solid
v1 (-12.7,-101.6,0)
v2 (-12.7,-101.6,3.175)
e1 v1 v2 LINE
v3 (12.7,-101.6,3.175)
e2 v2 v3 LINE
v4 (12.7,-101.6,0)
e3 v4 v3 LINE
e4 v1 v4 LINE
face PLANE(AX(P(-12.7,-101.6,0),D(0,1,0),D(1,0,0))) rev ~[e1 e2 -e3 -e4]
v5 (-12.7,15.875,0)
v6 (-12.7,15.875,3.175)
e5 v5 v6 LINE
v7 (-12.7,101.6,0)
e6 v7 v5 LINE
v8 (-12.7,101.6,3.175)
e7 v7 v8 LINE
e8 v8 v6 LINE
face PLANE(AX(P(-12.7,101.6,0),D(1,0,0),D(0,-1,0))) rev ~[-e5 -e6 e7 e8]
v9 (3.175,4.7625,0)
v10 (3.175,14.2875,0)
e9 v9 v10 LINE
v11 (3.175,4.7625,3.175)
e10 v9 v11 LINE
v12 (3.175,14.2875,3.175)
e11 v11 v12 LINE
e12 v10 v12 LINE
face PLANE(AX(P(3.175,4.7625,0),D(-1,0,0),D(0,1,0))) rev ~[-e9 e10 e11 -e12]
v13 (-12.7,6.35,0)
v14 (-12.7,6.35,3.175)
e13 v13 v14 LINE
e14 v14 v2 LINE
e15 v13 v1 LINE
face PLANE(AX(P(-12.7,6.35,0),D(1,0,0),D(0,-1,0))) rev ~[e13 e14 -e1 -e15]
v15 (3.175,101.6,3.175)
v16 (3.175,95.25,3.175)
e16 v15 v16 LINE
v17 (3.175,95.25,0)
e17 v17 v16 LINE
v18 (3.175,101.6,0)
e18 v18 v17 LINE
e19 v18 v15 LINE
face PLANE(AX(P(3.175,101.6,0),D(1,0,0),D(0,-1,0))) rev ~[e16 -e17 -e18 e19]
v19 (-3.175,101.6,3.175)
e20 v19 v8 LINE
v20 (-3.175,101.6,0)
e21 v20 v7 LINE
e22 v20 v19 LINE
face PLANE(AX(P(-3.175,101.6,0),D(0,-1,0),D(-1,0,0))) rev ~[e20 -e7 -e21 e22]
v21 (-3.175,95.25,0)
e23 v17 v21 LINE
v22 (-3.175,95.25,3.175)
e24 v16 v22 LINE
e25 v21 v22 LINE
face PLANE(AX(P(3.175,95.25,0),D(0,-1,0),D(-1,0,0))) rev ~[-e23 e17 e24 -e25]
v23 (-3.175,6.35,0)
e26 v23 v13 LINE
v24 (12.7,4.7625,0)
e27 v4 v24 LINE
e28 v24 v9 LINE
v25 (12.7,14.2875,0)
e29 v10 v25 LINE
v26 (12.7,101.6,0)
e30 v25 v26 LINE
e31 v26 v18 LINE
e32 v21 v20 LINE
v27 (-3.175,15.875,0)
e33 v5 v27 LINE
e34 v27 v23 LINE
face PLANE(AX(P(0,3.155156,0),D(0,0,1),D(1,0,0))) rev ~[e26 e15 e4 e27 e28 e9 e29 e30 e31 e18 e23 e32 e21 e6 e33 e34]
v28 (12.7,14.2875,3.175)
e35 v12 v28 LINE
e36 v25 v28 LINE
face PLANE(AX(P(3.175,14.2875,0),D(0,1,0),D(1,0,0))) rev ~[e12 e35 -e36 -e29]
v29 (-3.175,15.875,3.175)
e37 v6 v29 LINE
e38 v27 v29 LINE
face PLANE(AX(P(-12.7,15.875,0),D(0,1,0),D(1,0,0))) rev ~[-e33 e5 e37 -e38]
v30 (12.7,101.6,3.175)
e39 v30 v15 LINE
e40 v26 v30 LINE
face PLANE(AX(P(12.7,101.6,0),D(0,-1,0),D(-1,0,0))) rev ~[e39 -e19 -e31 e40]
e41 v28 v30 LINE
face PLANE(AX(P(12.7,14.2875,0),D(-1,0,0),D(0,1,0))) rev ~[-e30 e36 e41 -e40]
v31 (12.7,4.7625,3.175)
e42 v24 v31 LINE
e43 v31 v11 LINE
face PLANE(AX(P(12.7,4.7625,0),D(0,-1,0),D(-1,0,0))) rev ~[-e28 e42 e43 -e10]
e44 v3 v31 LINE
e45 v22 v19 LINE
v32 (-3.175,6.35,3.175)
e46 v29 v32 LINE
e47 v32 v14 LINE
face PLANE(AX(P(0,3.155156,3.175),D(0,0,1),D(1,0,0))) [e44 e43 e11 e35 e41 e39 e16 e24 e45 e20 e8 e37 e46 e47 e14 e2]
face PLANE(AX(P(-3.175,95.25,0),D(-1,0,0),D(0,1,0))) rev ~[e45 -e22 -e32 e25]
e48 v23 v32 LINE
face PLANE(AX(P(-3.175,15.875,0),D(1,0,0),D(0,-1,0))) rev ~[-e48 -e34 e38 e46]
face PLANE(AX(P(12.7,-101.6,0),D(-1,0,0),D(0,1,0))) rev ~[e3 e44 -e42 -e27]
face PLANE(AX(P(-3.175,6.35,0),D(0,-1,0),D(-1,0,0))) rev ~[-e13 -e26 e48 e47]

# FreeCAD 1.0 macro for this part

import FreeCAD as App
import Part
import Sketcher

V = App.Vector
Q = App.Units.Quantity

doc = App.newDocument("Part")
body = doc.addObject("PartDesign::Body", "Body")

# Sketch on XY plane
sketch1 = body.newObject("Sketcher::SketchObject", "Sketch")
sketch1.AttachmentSupport = (doc.getObject("XY_Plane"), [""])
sketch1.MapMode = "FlatFace"
sketch1.addGeometry(Part.LineSegment(V(-13, 6, 0), V(-13, -102, 0)), False)
sketch1.addGeometry(Part.LineSegment(V(-13, -102, 0), V(13, -102, 0)), False)
sketch1.addGeometry(Part.LineSegment(V(13, -102, 0), V(13, 5, 0)), False)
sketch1.addGeometry(Part.LineSegment(V(13, 5, 0), V(3, 5, 0)), False)
sketch1.addGeometry(Part.LineSegment(V(3, 5, 0), V(3, 14, 0)), False)
sketch1.addGeometry(Part.LineSegment(V(3, 14, 0), V(13, 14, 0)), False)
sketch1.addGeometry(Part.LineSegment(V(13, 14, 0), V(13, 102, 0)), False)
sketch1.addGeometry(Part.LineSegment(V(13, 102, 0), V(3, 102, 0)), False)
sketch1.addGeometry(Part.LineSegment(V(3, 102, 0), V(3, 95, 0)), False)
sketch1.addGeometry(Part.LineSegment(V(3, 95, 0), V(-3, 95, 0)), False)
sketch1.addGeometry(Part.LineSegment(V(-3, 95, 0), V(-3, 102, 0)), False)
sketch1.addGeometry(Part.LineSegment(V(-3, 102, 0), V(-13, 102, 0)), False)
sketch1.addGeometry(Part.LineSegment(V(-13, 102, 0), V(-13, 16, 0)), False)
sketch1.addGeometry(Part.LineSegment(V(-13, 16, 0), V(-3, 16, 0)), False)
sketch1.addGeometry(Part.LineSegment(V(-3, 16, 0), V(-3, 6, 0)), False)
sketch1.addGeometry(Part.LineSegment(V(-3, 6, 0), V(-13, 6, 0)), False)
sketch1.addConstraint(Sketcher.Constraint("Coincident", 0, 2, 1, 1))
sketch1.addConstraint(Sketcher.Constraint("Coincident", 1, 2, 2, 1))
sketch1.addConstraint(Sketcher.Constraint("Coincident", 2, 2, 3, 1))
sketch1.addConstraint(Sketcher.Constraint("Coincident", 3, 2, 4, 1))
sketch1.addConstraint(Sketcher.Constraint("Coincident", 4, 2, 5, 1))
sketch1.addConstraint(Sketcher.Constraint("Coincident", 5, 2, 6, 1))
sketch1.addConstraint(Sketcher.Constraint("Coincident", 6, 2, 7, 1))
sketch1.addConstraint(Sketcher.Constraint("Coincident", 7, 2, 8, 1))
sketch1.addConstraint(Sketcher.Constraint("Coincident", 8, 2, 9, 1))
sketch1.addConstraint(Sketcher.Constraint("Coincident", 9, 2, 10, 1))
sketch1.addConstraint(Sketcher.Constraint("Coincident", 10, 2, 11, 1))
sketch1.addConstraint(Sketcher.Constraint("Coincident", 11, 2, 12, 1))
sketch1.addConstraint(Sketcher.Constraint("Coincident", 12, 2, 13, 1))
sketch1.addConstraint(Sketcher.Constraint("Coincident", 13, 2, 14, 1))
sketch1.addConstraint(Sketcher.Constraint("Coincident", 14, 2, 15, 1))
sketch1.addConstraint(Sketcher.Constraint("Coincident", 15, 2, 0, 1))
sketch1.addConstraint(Sketcher.Constraint("Vertical", 0))
sketch1.addConstraint(Sketcher.Constraint("Horizontal", 1))
sketch1.addConstraint(Sketcher.Constraint("Vertical", 2))
sketch1.addConstraint(Sketcher.Constraint("Horizontal", 3))
sketch1.addConstraint(Sketcher.Constraint("Vertical", 4))
sketch1.addConstraint(Sketcher.Constraint("Horizontal", 5))
sketch1.addConstraint(Sketcher.Constraint("Vertical", 6))
sketch1.addConstraint(Sketcher.Constraint("Horizontal", 7))
sketch1.addConstraint(Sketcher.Constraint("Vertical", 8))
sketch1.addConstraint(Sketcher.Constraint("Horizontal", 9))
sketch1.addConstraint(Sketcher.Constraint("Vertical", 10))
sketch1.addConstraint(Sketcher.Constraint("Horizontal", 11))
sketch1.addConstraint(Sketcher.Constraint("Vertical", 12))
sketch1.addConstraint(Sketcher.Constraint("Horizontal", 13))
sketch1.addConstraint(Sketcher.Constraint("Vertical", 14))
sketch1.addConstraint(Sketcher.Constraint("Horizontal", 15))
sketch1.addConstraint(Sketcher.Constraint("Symmetric", 0, 2, 6, 2, -1, 1))
sketch1.addConstraint(Sketcher.Constraint("Symmetric", 1, 2, 11, 2, -1, 1))
sketch1.addConstraint(Sketcher.Constraint("Vertical", 2, 2, 5, 2))
sketch1.addConstraint(Sketcher.Constraint("Vertical", 4, 2, 7, 2))
sketch1.addConstraint(Sketcher.Constraint("Vertical", 10, 2, 13, 2))
sketch1.addConstraint(Sketcher.Constraint("Equal", 7, 11))
sketch1.addConstraint(Sketcher.Constraint("Equal", 15, 4))
sketch1.addConstraint(Sketcher.Constraint("Equal", 9, 8))
sketch1.addConstraint(Sketcher.Constraint("Equal", 4, 14))
sketch1.addConstraint(Sketcher.Constraint("DistanceX", 1, 1, 1, 2, Q("1 in")))
sketch1.addConstraint(Sketcher.Constraint("DistanceY", 0, 2, -1, 1, Q("4 in")))
sketch1.addConstraint(Sketcher.Constraint("DistanceX", 9, 2, 9, 1, Q("0.25 in")))
sketch1.addConstraint(Sketcher.Constraint("DistanceY", 0, 2, 0, 1, Q("4.25 in")))
sketch1.addConstraint(Sketcher.Constraint("DistanceY", 2, 1, 2, 2, Q("4.1875 in")))
pad1 = body.newObject("PartDesign::Pad", "Pad")
pad1.Profile = sketch1
pad1.Length = Q("0.125 in")

doc.recompute()
